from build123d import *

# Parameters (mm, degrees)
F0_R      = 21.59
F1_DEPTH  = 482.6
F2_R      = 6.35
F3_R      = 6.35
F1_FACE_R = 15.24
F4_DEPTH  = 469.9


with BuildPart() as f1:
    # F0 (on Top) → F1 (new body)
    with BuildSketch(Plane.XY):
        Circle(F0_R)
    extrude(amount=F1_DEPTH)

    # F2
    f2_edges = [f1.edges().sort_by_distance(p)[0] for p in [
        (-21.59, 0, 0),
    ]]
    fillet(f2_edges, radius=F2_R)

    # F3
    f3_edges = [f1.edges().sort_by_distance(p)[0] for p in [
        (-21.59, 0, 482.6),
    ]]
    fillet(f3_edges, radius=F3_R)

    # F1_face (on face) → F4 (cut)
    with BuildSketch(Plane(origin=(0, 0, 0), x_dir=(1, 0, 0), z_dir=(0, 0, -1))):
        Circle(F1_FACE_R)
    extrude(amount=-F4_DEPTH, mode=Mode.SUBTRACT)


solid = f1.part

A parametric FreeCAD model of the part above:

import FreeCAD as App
import Part
import Sketcher

V = App.Vector
Q = App.Units.Quantity


def edges_at(feature, points):
    """Names of the edges that pass closest to the given points."""
    edges = feature.Shape.Edges
    near = lambda p: min(range(len(edges)), key=lambda i: edges[i].distToShape(Part.Vertex(*p))[0])
    return sorted({f"Edge{near(p) + 1}" for p in points})

doc = App.newDocument("Part")
body = doc.addObject("PartDesign::Body", "Body")

# Sketch on XY plane
sketch1 = body.newObject("Sketcher::SketchObject", "Sketch")
sketch1.AttachmentSupport = (doc.getObject("XY_Plane"), [""])
sketch1.MapMode = "FlatFace"
sketch1.addGeometry(Part.Circle(V(0, 0, 0), V(0, 0, 1), 22), False)
sketch1.addConstraint([
    Sketcher.Constraint("Coincident", 0, 3, -1, 1),
    Sketcher.Constraint("Diameter", 0, Q("1.7 in")),
])
pad1 = body.newObject("PartDesign::Pad", "Pad")
pad1.Profile = sketch1
pad1.Length = Q("19 in")
doc.recompute()

fillet = body.newObject("PartDesign::Fillet", "Fillet")
fillet.Base = (pad1, edges_at(pad1, [(-21.59, 0, 0)]))
fillet.Radius = Q("0.25 in")
doc.recompute()

fillet2 = body.newObject("PartDesign::Fillet", "Fillet001")
fillet2.Base = (fillet, edges_at(fillet, [(-21.59, 0, 482.6)]))
fillet2.Radius = Q("0.25 in")

# Sketch on XY plane
sketch2 = body.newObject("Sketcher::SketchObject", "Sketch001")
sketch2.AttachmentSupport = (doc.getObject("XY_Plane"), [""])
sketch2.MapMode = "FlatFace"
sketch2.addGeometry(Part.Circle(V(0, 0, 0), V(0, 0, 1), 15), False)
sketch2.addConstraint([
    Sketcher.Constraint("Coincident", 0, 3, -1, 1),
    Sketcher.Constraint("Diameter", 0, Q("1.2 in")),
])
pocket1 = body.newObject("PartDesign::Pocket", "Pocket")
pocket1.Profile = sketch2
pocket1.Length = Q("18.5 in")
pocket1.Reversed = True

doc.recompute()
